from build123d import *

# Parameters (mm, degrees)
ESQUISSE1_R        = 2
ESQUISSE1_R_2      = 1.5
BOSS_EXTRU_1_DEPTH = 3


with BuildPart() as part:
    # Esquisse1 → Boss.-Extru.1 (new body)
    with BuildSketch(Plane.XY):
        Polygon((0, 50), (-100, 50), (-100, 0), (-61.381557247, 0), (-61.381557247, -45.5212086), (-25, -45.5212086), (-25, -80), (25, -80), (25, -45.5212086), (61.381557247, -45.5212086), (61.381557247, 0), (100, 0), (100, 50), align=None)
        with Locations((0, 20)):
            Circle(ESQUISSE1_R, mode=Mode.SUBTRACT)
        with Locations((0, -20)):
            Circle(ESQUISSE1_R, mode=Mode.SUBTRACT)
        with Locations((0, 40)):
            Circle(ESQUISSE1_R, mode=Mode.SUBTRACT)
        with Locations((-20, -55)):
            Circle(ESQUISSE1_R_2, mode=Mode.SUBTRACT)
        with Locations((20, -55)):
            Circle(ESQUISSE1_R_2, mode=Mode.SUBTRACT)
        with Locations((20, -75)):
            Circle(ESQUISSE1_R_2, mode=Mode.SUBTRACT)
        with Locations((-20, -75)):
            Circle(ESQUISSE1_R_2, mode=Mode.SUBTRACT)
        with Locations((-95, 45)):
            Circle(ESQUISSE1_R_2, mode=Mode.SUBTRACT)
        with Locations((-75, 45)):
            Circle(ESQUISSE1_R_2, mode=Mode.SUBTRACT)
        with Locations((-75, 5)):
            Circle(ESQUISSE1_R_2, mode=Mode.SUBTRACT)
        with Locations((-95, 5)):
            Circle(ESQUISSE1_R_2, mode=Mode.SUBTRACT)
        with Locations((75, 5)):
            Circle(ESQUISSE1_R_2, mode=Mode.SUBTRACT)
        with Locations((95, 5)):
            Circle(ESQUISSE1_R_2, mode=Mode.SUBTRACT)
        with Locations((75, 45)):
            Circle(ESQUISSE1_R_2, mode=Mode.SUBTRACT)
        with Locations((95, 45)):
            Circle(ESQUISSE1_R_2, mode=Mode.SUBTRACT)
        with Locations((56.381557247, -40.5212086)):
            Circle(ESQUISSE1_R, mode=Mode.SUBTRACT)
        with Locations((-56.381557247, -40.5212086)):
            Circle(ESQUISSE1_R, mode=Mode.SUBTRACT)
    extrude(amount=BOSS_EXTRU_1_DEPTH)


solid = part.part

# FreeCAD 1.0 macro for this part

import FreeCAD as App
import Part
import Sketcher

V = App.Vector
Q = App.Units.Quantity

doc = App.newDocument("Part")
params = doc.addObject("Spreadsheet::Sheet", "Params")
for row, (alias, value) in enumerate([
    ("sketch1_diameter", "3 mm"),
    ("sketch1_diameter2", "4 mm"),
    ("sketch1_width", "50 mm"),
    ("sketch1_width2", "200 mm"),
    ("pad1_length", "3 mm"),
], start=1):
    params.set(f"A{row}", alias)
    params.set(f"B{row}", "=" + value)
    params.setAlias(f"B{row}", alias)

body = doc.addObject("PartDesign::Body", "Body")

sketch1 = body.newObject("Sketcher::SketchObject", "Sketch")
sketch1.AttachmentSupport = (doc.getObject("XY_Plane"), [""])
sketch1.MapMode = "FlatFace"
sketch1.addGeometry([
    Part.LineSegment(V(-100, 50, 0), V(-100, 0, 0)),
    Part.LineSegment(V(-100, 0, 0), V(-61.4, 0, 0)),
    Part.LineSegment(V(-61.4, 0, 0), V(-61.4, -45.5, 0)),
    Part.LineSegment(V(-61.4, -45.5, 0), V(-25, -45.5, 0)),
    Part.LineSegment(V(-25, -45.5, 0), V(-25, -80, 0)),
    Part.LineSegment(V(-25, -80, 0), V(25, -80, 0)),
    Part.LineSegment(V(25, -80, 0), V(25, -45.5, 0)),
    Part.LineSegment(V(25, -45.5, 0), V(61.4, -45.5, 0)),
    Part.LineSegment(V(61.4, -45.5, 0), V(61.4, 0, 0)),
    Part.LineSegment(V(61.4, 0, 0), V(100, 0, 0)),
    Part.LineSegment(V(100, 0, 0), V(100, 50, 0)),
    Part.LineSegment(V(100, 50, 0), V(-100, 50, 0)),
    Part.Circle(V(-20, -75, 0), V(0, 0, 1), 1.5),
    Part.Circle(V(-20, -55, 0), V(0, 0, 1), 1.5),
    Part.Circle(V(-56.4, -40.5, 0), V(0, 0, 1), 2),
    Part.Circle(V(20, -75, 0), V(0, 0, 1), 1.5),
    Part.Circle(V(20, -55, 0), V(0, 0, 1), 1.5),
    Part.Circle(V(0, -20, 0), V(0, 0, 1), 2),
    Part.Circle(V(56.4, -40.5, 0), V(0, 0, 1), 2),
    Part.Circle(V(-95, 5, 0), V(0, 0, 1), 1.5),
    Part.Circle(V(-75, 5, 0), V(0, 0, 1), 1.5),
    Part.Circle(V(-95, 45, 0), V(0, 0, 1), 1.5),
    Part.Circle(V(-75, 45, 0), V(0, 0, 1), 1.5),
    Part.Circle(V(75, 5, 0), V(0, 0, 1), 1.5),
    Part.Circle(V(95, 5, 0), V(0, 0, 1), 1.5),
    Part.Circle(V(0, 20, 0), V(0, 0, 1), 2),
    Part.Circle(V(0, 40, 0), V(0, 0, 1), 2),
    Part.Circle(V(75, 45, 0), V(0, 0, 1), 1.5),
    Part.Circle(V(95, 45, 0), V(0, 0, 1), 1.5),
], False)
sketch1.addConstraint([
    Sketcher.Constraint("Coincident", 0, 2, 1, 1),
    Sketcher.Constraint("Coincident", 1, 2, 2, 1),
    Sketcher.Constraint("Coincident", 2, 2, 3, 1),
    Sketcher.Constraint("Coincident", 3, 2, 4, 1),
    Sketcher.Constraint("Coincident", 4, 2, 5, 1),
    Sketcher.Constraint("Coincident", 5, 2, 6, 1),
    Sketcher.Constraint("Coincident", 6, 2, 7, 1),
    Sketcher.Constraint("Coincident", 7, 2, 8, 1),
    Sketcher.Constraint("Coincident", 8, 2, 9, 1),
    Sketcher.Constraint("Coincident", 9, 2, 10, 1),
    Sketcher.Constraint("Coincident", 10, 2, 11, 1),
    Sketcher.Constraint("Coincident", 11, 2, 0, 1),
    Sketcher.Constraint("Vertical", 0),
    Sketcher.Constraint("Horizontal", 1),
    Sketcher.Constraint("Vertical", 2),
    Sketcher.Constraint("Horizontal", 3),
    Sketcher.Constraint("Vertical", 4),
    Sketcher.Constraint("Horizontal", 5),
    Sketcher.Constraint("Vertical", 6),
    Sketcher.Constraint("Horizontal", 7),
    Sketcher.Constraint("Vertical", 8),
    Sketcher.Constraint("Horizontal", 9),
    Sketcher.Constraint("Vertical", 10),
    Sketcher.Constraint("Horizontal", 11),
    Sketcher.Constraint("Equal", 12, 13),
    Sketcher.Constraint("Equal", 13, 15),
    Sketcher.Constraint("Equal", 15, 16),
    Sketcher.Constraint("Equal", 14, 17),
    Sketcher.Constraint("Equal", 17, 18),
    Sketcher.Constraint("Equal", 16, 19),
    Sketcher.Constraint("Equal", 19, 20),
    Sketcher.Constraint("Equal", 20, 21),
    Sketcher.Constraint("Equal", 21, 22),
    Sketcher.Constraint("Equal", 22, 23),
    Sketcher.Constraint("Equal", 23, 24),
    Sketcher.Constraint("Equal", 18, 25),
    Sketcher.Constraint("Equal", 25, 26),
    Sketcher.Constraint("Equal", 24, 27),
    Sketcher.Constraint("Equal", 27, 28),
    Sketcher.Constraint("Symmetric", 17, 3, 25, 3, -1, 1),
    Sketcher.Constraint("Symmetric", 1, 2, 8, 2, -1, 1),
    Sketcher.Constraint("Symmetric", 12, 3, 15, 3, -2),
    Sketcher.Constraint("Symmetric", 13, 3, 16, 3, -2),
    Sketcher.Constraint("Symmetric", 14, 3, 18, 3, -2),
    Sketcher.Constraint("Symmetric", 20, 3, 23, 3, -2),
    Sketcher.Constraint("Symmetric", 19, 3, 24, 3, -2),
    Sketcher.Constraint("Symmetric", 22, 3, 27, 3, -2),
    Sketcher.Constraint("Symmetric", 21, 3, 28, 3, -2),
    Sketcher.Constraint("Symmetric", 3, 2, 6, 2, -2),
    Sketcher.Constraint("Symmetric", 0, 2, 9, 2, -2),
    Sketcher.Constraint("PointOnObject", 17, 3, -2),
    Sketcher.Constraint("PointOnObject", 26, 3, -2),
    Sketcher.Constraint("Horizontal", 19, 3, 20, 3),
    Sketcher.Constraint("Horizontal", 21, 3, 22, 3),
    Sketcher.Constraint("Vertical", 12, 3, 13, 3),
    Sketcher.Constraint("Vertical", 19, 3, 21, 3),
    Sketcher.Constraint("Vertical", 20, 3, 22, 3),
    Sketcher.Constraint("Equal", 5, 0),
    Sketcher.Constraint("Diameter", 12, Q("3 mm")),
    Sketcher.Constraint("Diameter", 14, Q("4 mm")),
    Sketcher.Constraint("DistanceX", 5, 1, 5, 2, Q("50 mm")),
    Sketcher.Constraint("DistanceX", 11, 2, 11, 1, Q("200 mm")),
    Sketcher.Constraint("DistanceX", 12, 3, -1, 1, Q("20 mm")),
    Sketcher.Constraint("DistanceY", 12, 3, -1, 1, Q("75 mm")),
    Sketcher.Constraint("DistanceY", 13, 3, -1, 1, Q("55 mm")),
    Sketcher.Constraint("DistanceY", 17, 3, -1, 1, Q("20 mm")),
    Sketcher.Constraint("DistanceX", 19, 3, -1, 1, Q("95 mm")),
    Sketcher.Constraint("DistanceY", -1, 1, 19, 3, Q("5 mm")),
    Sketcher.Constraint("DistanceX", 20, 3, -1, 1, Q("75 mm")),
    Sketcher.Constraint("DistanceY", -1, 1, 21, 3, Q("45 mm")),
    Sketcher.Constraint("DistanceY", -1, 1, 26, 3, Q("40 mm")),
    Sketcher.Constraint("DistanceY", 4, 2, -1, 1, Q("80 mm")),
    Sketcher.Constraint("DistanceX", 1, 2, 14, 3, Q("5 mm")),
    Sketcher.Constraint("DistanceY", 2, 2, 14, 3, Q("5 mm")),
    Sketcher.Constraint("DistanceY", 2, 2, 2, 1, Q("45.521209 mm")),
    Sketcher.Constraint("DistanceX", 1, 1, 1, 2, Q("38.618443 mm")),
])
sketch1.setExpression("Constraints[58]", "Params.sketch1_diameter")
sketch1.setExpression("Constraints[59]", "Params.sketch1_diameter2")
sketch1.setExpression("Constraints[60]", "Params.sketch1_width")
sketch1.setExpression("Constraints[61]", "Params.sketch1_width2")
pad1 = body.newObject("PartDesign::Pad", "Pad")
pad1.Profile = sketch1
pad1.setExpression("Length", "Params.pad1_length")

doc.recompute()
